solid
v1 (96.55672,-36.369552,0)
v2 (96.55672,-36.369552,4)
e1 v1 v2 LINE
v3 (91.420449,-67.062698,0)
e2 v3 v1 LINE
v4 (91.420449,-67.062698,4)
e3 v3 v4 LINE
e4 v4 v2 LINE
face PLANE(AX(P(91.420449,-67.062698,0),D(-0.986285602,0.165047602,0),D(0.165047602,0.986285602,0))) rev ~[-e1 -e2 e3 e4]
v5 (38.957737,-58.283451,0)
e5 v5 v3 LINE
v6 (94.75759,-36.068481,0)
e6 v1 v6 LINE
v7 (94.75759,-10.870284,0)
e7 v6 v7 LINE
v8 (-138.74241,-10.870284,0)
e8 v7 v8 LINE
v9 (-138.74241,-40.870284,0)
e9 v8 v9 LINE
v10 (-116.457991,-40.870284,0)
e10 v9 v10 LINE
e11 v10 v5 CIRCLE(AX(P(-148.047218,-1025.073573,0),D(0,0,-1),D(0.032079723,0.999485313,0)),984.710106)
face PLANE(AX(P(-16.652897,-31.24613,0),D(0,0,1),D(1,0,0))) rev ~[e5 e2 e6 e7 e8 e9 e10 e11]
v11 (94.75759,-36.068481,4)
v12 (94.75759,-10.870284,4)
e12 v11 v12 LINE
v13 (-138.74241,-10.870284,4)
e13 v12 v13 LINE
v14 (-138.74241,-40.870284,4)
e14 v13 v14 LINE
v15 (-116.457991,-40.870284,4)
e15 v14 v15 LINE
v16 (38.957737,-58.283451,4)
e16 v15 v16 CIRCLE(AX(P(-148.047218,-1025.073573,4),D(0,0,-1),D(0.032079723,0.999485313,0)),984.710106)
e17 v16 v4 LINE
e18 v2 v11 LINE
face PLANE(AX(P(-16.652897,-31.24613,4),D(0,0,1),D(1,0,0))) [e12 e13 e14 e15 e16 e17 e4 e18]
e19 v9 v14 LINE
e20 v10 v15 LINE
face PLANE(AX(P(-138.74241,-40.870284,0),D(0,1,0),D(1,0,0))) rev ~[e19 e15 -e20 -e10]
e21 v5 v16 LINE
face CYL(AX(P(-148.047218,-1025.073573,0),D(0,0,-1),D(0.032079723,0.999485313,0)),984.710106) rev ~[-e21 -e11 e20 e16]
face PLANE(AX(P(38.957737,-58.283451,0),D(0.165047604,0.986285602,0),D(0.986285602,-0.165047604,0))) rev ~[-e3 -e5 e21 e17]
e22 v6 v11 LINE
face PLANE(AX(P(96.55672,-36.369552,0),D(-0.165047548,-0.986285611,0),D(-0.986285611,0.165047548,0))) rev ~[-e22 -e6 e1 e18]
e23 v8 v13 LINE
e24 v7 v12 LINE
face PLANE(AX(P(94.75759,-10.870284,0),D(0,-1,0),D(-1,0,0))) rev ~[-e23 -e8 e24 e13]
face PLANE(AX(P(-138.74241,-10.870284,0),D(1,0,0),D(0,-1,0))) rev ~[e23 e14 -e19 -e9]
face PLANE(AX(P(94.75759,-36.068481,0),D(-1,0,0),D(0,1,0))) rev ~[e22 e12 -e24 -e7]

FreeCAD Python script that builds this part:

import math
import FreeCAD as App
import Part
import Sketcher
from FreeCAD import Vector
Q = App.Units.Quantity

doc = App.newDocument("Part")
body = doc.addObject("PartDesign::Body", "Body")

sketch1 = body.newObject("Sketcher::SketchObject", "Sketch")
sketch1.AttachmentSupport = (doc.getObject("XY_Plane"), [""])
sketch1.MapMode = "FlatFace"
sketch1.addGeometry([
    Part.LineSegment(Vector(94.8, -10.9, 0), Vector(-138.7, -10.9, 0)),
    Part.LineSegment(Vector(-138.7, -10.9, 0), Vector(-138.7, -40.9, 0)),
    Part.LineSegment(Vector(-138.7, -40.9, 0), Vector(-116.5, -40.9, 0)),
    Part.ArcOfCircle(Part.Circle(Vector(-148, -1025.1, 0), Vector(0, 0, 1), 984.7), math.radians(79.05), math.radians(88.16)),
    Part.LineSegment(Vector(39, -58.3, 0), Vector(91.4, -67.1, 0)),
    Part.LineSegment(Vector(91.4, -67.1, 0), Vector(96.6, -36.4, 0)),
    Part.LineSegment(Vector(96.6, -36.4, 0), Vector(94.8, -36.1, 0)),
    Part.LineSegment(Vector(94.8, -36.1, 0), Vector(94.8, -10.9, 0)),
], False)
sketch1.addConstraint([
    Sketcher.Constraint("Coincident", 0, 2, 1, 1),
    Sketcher.Constraint("Coincident", 1, 2, 2, 1),
    Sketcher.Constraint("Coincident", 2, 2, 3, 2),
    Sketcher.Constraint("Coincident", 3, 1, 4, 1),
    Sketcher.Constraint("Coincident", 4, 2, 5, 1),
    Sketcher.Constraint("Coincident", 5, 2, 6, 1),
    Sketcher.Constraint("Coincident", 6, 2, 7, 1),
    Sketcher.Constraint("Coincident", 7, 2, 0, 1),
    Sketcher.Constraint("Horizontal", 0),
    Sketcher.Constraint("Vertical", 1),
    Sketcher.Constraint("Horizontal", 2),
    Sketcher.Constraint("Vertical", 7),
    Sketcher.Constraint("Perpendicular", 4, 5),
    Sketcher.Constraint("Perpendicular", 5, 6),
    Sketcher.Constraint("DistanceY", 1, 2, 1, 1, 30.0),
    Sketcher.Constraint("DistanceX", 0, 2, 0, 1, 233.5),
    Sketcher.Constraint("Angle", 4, Q("-9.5 deg")),
    Sketcher.Constraint("Radius", 3, 984.710106),
    Sketcher.Constraint("DistanceX", 2, 1, 2, 2, 22.284419),
    Sketcher.Constraint("DistanceY", 3, 1, 5, 2, 21.913899),
    Sketcher.Constraint("Distance", 4, 53.192211),
    Sketcher.Constraint("DistanceY", 7, 1, 7, 2, 25.198197),
    Sketcher.Constraint("DistanceX", 3, 3, -1, 1, 148.047218),
    Sketcher.Constraint("DistanceX", 0, 2, -1, 1, 138.74241),
    Sketcher.Constraint("DistanceY", 6, 2, -1, 1, 36.068481),
])
pad1 = body.newObject("PartDesign::Pad", "Pad")
pad1.Profile = sketch1
pad1.Length = 4

doc.recompute()
